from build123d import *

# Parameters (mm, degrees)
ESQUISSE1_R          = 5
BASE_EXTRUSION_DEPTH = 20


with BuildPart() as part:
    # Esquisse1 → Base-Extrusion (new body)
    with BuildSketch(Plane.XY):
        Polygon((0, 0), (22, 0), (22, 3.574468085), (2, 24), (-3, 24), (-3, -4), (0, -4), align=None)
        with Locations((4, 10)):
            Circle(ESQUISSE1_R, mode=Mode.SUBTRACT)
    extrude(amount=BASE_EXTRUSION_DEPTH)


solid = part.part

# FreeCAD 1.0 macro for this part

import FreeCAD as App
import Part
import Sketcher

V = App.Vector

doc = App.newDocument("Part")
params = doc.addObject("Spreadsheet::Sheet", "Params")
for row, (alias, value) in enumerate([
    ("sketch1_diameter", "10 mm"),
    ("sketch1_width", "22 mm"),
    ("sketch1_width2", "5 mm"),
    ("sketch1_width3", "3 mm"),
    ("sketch1_height", "28 mm"),
    ("pad1_length", "20 mm"),
], start=1):
    params.set(f"A{row}", alias)
    params.set(f"B{row}", "=" + value)
    params.setAlias(f"B{row}", alias)

body = doc.addObject("PartDesign::Body", "Body")

# Sketch on XY plane
sketch1 = doc.addObject("Sketcher::SketchObject", "Sketch")
body.addObject(sketch1)
sketch1.AttachmentSupport = (doc.XY_Plane, [""])
sketch1.MapMode = "FlatFace"
sketch1.addGeometry([
    Part.LineSegment(V(0, 0, 0), V(22, 0, 0)),  # 0
    Part.LineSegment(V(22, 0, 0), V(22, 3.6, 0)),  # 1
    Part.LineSegment(V(22, 3.6, 0), V(2, 24, 0)),  # 2
    Part.LineSegment(V(2, 24, 0), V(-3, 24, 0)),  # 3
    Part.LineSegment(V(-3, 24, 0), V(-3, -4, 0)),  # 4
    Part.LineSegment(V(-3, -4, 0), V(0, -4, 0)),  # 5
    Part.LineSegment(V(0, -4, 0), V(0, 0, 0)),  # 6
    Part.Circle(V(4, 10, 0), V(0, 0, 1), 5),  # 7
], False)
sketch1.addConstraint([
    Sketcher.Constraint("Coincident", 0, 2, 1, 1),
    Sketcher.Constraint("Coincident", 1, 2, 2, 1),
    Sketcher.Constraint("Coincident", 2, 2, 3, 1),
    Sketcher.Constraint("Coincident", 3, 2, 4, 1),
    Sketcher.Constraint("Coincident", 4, 2, 5, 1),
    Sketcher.Constraint("Coincident", 5, 2, 6, 1),
    Sketcher.Constraint("Coincident", 6, 2, 0, 1),
    Sketcher.Constraint("Horizontal", 0),
    Sketcher.Constraint("Vertical", 1),
    Sketcher.Constraint("Horizontal", 3),
    Sketcher.Constraint("Vertical", 4),
    Sketcher.Constraint("Horizontal", 5),
    Sketcher.Constraint("Vertical", 6),
    Sketcher.Constraint("Coincident", 6, 2, -1, 1),
    Sketcher.Constraint("Diameter", 7, 10.0),
    Sketcher.Constraint("DistanceX", 0, 1, 0, 2, 22.0),
    Sketcher.Constraint("DistanceX", 3, 2, 3, 1, 5.0),
    Sketcher.Constraint("DistanceX", 5, 1, 5, 2, 3.0),
    Sketcher.Constraint("DistanceY", 4, 2, 4, 1, 28.0),
    Sketcher.Constraint("DistanceY", 6, 1, 6, 2, 4.0),
    Sketcher.Constraint("DistanceX", -1, 1, 7, 3, 4.0),
    Sketcher.Constraint("DistanceY", -1, 1, 7, 3, 10.0),
    Sketcher.Constraint("DistanceY", 1, 1, 1, 2, 3.574468),
])
sketch1.setExpression("Constraints[14]", "Params.sketch1_diameter")
sketch1.setExpression("Constraints[15]", "Params.sketch1_width")
sketch1.setExpression("Constraints[16]", "Params.sketch1_width2")
sketch1.setExpression("Constraints[17]", "Params.sketch1_width3")
sketch1.setExpression("Constraints[18]", "Params.sketch1_height")
pad1 = doc.addObject("PartDesign::Pad", "Pad")
body.addObject(pad1)
pad1.Profile = sketch1
pad1.setExpression("Length", "Params.pad1_length")

doc.recompute()
